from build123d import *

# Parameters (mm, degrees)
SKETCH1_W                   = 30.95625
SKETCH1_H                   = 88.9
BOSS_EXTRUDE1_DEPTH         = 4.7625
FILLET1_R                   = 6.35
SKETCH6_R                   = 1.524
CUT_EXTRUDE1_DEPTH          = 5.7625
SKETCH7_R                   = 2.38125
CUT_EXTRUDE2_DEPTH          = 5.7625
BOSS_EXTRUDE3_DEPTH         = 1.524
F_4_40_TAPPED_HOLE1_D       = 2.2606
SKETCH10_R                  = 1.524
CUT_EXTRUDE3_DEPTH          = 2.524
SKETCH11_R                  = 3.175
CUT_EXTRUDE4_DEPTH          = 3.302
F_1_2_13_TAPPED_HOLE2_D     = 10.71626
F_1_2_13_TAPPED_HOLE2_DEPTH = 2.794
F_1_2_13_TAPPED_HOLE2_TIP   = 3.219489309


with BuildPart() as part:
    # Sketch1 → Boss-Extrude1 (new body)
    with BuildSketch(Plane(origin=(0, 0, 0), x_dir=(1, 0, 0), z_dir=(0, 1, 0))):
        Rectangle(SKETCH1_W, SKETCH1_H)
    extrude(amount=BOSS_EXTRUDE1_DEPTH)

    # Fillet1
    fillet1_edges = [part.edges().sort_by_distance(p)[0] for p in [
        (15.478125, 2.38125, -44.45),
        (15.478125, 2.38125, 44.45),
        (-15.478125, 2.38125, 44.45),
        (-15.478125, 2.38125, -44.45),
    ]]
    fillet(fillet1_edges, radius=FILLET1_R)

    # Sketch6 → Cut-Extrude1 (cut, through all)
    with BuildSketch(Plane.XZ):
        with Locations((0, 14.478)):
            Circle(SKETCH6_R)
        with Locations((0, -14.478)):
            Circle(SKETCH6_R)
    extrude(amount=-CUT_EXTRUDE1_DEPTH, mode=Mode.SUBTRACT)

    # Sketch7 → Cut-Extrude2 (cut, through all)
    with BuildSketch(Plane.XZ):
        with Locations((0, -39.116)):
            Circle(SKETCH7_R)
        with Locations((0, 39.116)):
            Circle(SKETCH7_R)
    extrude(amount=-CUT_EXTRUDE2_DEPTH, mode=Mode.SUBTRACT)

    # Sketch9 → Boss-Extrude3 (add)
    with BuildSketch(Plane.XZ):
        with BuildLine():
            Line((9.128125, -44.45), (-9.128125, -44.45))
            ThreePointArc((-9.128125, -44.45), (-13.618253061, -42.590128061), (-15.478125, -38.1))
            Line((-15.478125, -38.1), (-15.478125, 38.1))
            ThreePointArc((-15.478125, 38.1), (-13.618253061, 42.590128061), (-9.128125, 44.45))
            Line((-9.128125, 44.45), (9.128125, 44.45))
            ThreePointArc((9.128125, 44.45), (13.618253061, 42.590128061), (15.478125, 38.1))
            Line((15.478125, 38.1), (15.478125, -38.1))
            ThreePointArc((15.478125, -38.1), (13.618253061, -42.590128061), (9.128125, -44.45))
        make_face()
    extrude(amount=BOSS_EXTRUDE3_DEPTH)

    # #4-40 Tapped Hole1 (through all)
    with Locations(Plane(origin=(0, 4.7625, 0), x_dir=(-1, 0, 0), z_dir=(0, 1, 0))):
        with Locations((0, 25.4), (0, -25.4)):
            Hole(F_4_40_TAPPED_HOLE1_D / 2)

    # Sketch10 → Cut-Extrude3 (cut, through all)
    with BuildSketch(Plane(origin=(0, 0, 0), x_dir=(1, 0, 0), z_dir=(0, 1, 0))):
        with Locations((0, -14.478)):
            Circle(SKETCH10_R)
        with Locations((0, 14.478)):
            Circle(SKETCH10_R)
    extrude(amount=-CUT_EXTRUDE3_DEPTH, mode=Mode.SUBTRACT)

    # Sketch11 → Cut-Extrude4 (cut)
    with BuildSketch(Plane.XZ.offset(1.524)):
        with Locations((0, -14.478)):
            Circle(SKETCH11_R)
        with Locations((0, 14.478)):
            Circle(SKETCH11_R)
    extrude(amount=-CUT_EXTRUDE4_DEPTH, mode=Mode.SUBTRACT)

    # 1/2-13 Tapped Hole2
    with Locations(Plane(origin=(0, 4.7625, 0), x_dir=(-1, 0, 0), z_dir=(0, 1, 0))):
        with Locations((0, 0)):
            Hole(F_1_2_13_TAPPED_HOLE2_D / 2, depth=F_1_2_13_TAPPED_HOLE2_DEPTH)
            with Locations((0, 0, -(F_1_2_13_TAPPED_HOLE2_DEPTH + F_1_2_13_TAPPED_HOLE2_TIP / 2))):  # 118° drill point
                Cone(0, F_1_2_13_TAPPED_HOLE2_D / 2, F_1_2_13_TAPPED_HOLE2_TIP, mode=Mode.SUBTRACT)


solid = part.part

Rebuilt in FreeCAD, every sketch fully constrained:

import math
import FreeCAD as App
import Part
import Sketcher
from FreeCAD import Vector
Q = App.Units.Quantity


def edges_at(feature, points):
    """Names of the edges that pass closest to the given points."""
    edges = feature.Shape.Edges
    near = lambda p: min(range(len(edges)), key=lambda i: edges[i].distToShape(Part.Vertex(*p))[0])
    return sorted({f"Edge{near(p) + 1}" for p in points})


def add_polygon(sketch, points):
    """Adds a closed chain of lines whose ends are joined by coincident constraints."""
    first, n = sketch.GeometryCount, len(points)
    for a, b in zip(points, points[1:] + points[:1]):
        sketch.addGeometry(Part.LineSegment(App.Vector(*a, 0), App.Vector(*b, 0)), False)
    for i in range(n):
        sketch.addConstraint(Sketcher.Constraint("Coincident", first + i, 2, first + (i + 1) % n, 1))

doc = App.newDocument("Part")
params = doc.addObject("Spreadsheet::Sheet", "Params")
for row, (alias, value) in enumerate([
    ("sketch1_height", "3.5 in"),
    ("sketch1_width", "1.21875 in"),
    ("pad1_length", "0.1875 in"),
    ("fillet_radius", "0.25 in"),
    ("sketch2_diameter", "0.12 in"),
    ("sketch3_diameter", "0.1875 in"),
    ("sketch4_height", "3 in"),
    ("sketch4_radius", "0.25 in"),
    ("sketch4_width", "0.71875 in"),
    ("pad2_length", "0.06 in"),
    ("sketch5_diameter", "0.089 in"),
    ("hole_diameter", "0.089 in"),
    ("sketch6_diameter", "0.12 in"),
    ("sketch7_diameter", "0.25 in"),
    ("pocket4_length", "0.13 in"),
    ("hole2_diameter", "0.4219 in"),
    ("hole2_depth", "0.11 in"),
], start=1):
    params.set(f"A{row}", alias)
    params.set(f"B{row}", "=" + value)
    params.setAlias(f"B{row}", alias)

body = doc.addObject("PartDesign::Body", "Body")

# Sketch on XZ plane
sketch1 = body.newObject("Sketcher::SketchObject", "Sketch")
sketch1.AttachmentSupport = (doc.getObject("XZ_Plane"), [""])
sketch1.MapMode = "FlatFace"
add_polygon(sketch1, [(-15, -44), (-15, 44), (15, 44), (15, -44)])  # lines 0-3
sketch1.addConstraint([
    Sketcher.Constraint("Vertical", 0),
    Sketcher.Constraint("Horizontal", 1),
    Sketcher.Constraint("Vertical", 2),
    Sketcher.Constraint("Horizontal", 3),
    Sketcher.Constraint("Symmetric", 0, 2, 2, 2, -1, 1),
    Sketcher.Constraint("DistanceY", 0, 1, 0, 2, Q("3.5 in")),
    Sketcher.Constraint("DistanceX", 1, 1, 1, 2, Q("1.21875 in")),
])
sketch1.setExpression("Constraints[9]", "Params.sketch1_height")
sketch1.setExpression("Constraints[10]", "Params.sketch1_width")
pad1 = body.newObject("PartDesign::Pad", "Pad")
pad1.Profile = sketch1
pad1.setExpression("Length", "Params.pad1_length")
pad1.Reversed = True
doc.recompute()

fillet = body.newObject("PartDesign::Fillet", "Fillet")
fillet.Base = (pad1, edges_at(pad1, [
    (15.478, 2.381, -44.45),
    (15.478, 2.381, 44.45),
    (-15.478, 2.381, 44.45),
    (-15.478, 2.381, -44.45),
]))
fillet.setExpression("Radius", "Params.fillet_radius")

# Sketch on XZ plane
sketch2 = body.newObject("Sketcher::SketchObject", "Sketch001")
sketch2.AttachmentSupport = (doc.getObject("XZ_Plane"), [""])
sketch2.MapMode = "FlatFace"
sketch2.addGeometry([
    Part.Circle(Vector(0, 14.5, 0), Vector(0, 0, 1), 1.5),
    Part.Circle(Vector(0, -14.5, 0), Vector(0, 0, 1), 1.5),
], False)
sketch2.addConstraint([
    Sketcher.Constraint("Equal", 0, 1),
    Sketcher.Constraint("Symmetric", 0, 3, 1, 3, -1, 1),
    Sketcher.Constraint("PointOnObject", 0, 3, -2),
    Sketcher.Constraint("Diameter", 0, Q("0.12 in")),
    Sketcher.Constraint("DistanceY", -1, 1, 0, 3, Q("0.57 in")),
])
sketch2.setExpression("Constraints[3]", "Params.sketch2_diameter")
pocket1 = body.newObject("PartDesign::Pocket", "Pocket")
pocket1.Profile = sketch2
pocket1.Type = "ThroughAll"

# Sketch on XZ plane
sketch3 = body.newObject("Sketcher::SketchObject", "Sketch002")
sketch3.AttachmentSupport = (doc.getObject("XZ_Plane"), [""])
sketch3.MapMode = "FlatFace"
sketch3.addGeometry([
    Part.Circle(Vector(0, -39.1, 0), Vector(0, 0, 1), 2.4),
    Part.Circle(Vector(0, 39.1, 0), Vector(0, 0, 1), 2.4),
], False)
sketch3.addConstraint([
    Sketcher.Constraint("Equal", 0, 1),
    Sketcher.Constraint("Symmetric", 0, 3, 1, 3, -1, 1),
    Sketcher.Constraint("PointOnObject", 0, 3, -2),
    Sketcher.Constraint("Diameter", 0, Q("0.1875 in")),
    Sketcher.Constraint("DistanceY", 0, 3, -1, 1, Q("1.54 in")),
])
sketch3.setExpression("Constraints[3]", "Params.sketch3_diameter")
pocket2 = body.newObject("PartDesign::Pocket", "Pocket001")
pocket2.Profile = sketch3
pocket2.Type = "ThroughAll"

# Sketch on XZ plane
sketch4 = body.newObject("Sketcher::SketchObject", "Sketch003")
sketch4.AttachmentSupport = (doc.getObject("XZ_Plane"), [""])
sketch4.MapMode = "FlatFace"
sketch4.addGeometry([
    Part.LineSegment(Vector(-9, -44, 0), Vector(9, -44, 0)),  # 0
    Part.ArcOfCircle(Part.Circle(Vector(9, -38, 0), Vector(0, 0, 1), 6), math.radians(-90), math.radians(0)),  # 1
    Part.LineSegment(Vector(15, -38, 0), Vector(15, 38, 0)),  # 2
    Part.ArcOfCircle(Part.Circle(Vector(9, 38, 0), Vector(0, 0, 1), 6), math.radians(0), math.radians(90)),  # 3
    Part.LineSegment(Vector(9, 44, 0), Vector(-9, 44, 0)),  # 4
    Part.ArcOfCircle(Part.Circle(Vector(-9, 38, 0), Vector(0, 0, 1), 6), math.radians(90), math.radians(180)),  # 5
    Part.LineSegment(Vector(-15, 38, 0), Vector(-15, -38, 0)),  # 6
    Part.ArcOfCircle(Part.Circle(Vector(-9, -38, 0), Vector(0, 0, 1), 6), math.radians(180), math.radians(270)),  # 7
], False)
sketch4.addConstraint([
    Sketcher.Constraint("Tangent", 0, 2, 1, 1),
    Sketcher.Constraint("Tangent", 1, 2, 2, 1),
    Sketcher.Constraint("Tangent", 2, 2, 3, 1),
    Sketcher.Constraint("Tangent", 3, 2, 4, 1),
    Sketcher.Constraint("Tangent", 4, 2, 5, 1),
    Sketcher.Constraint("Tangent", 5, 2, 6, 1),
    Sketcher.Constraint("Tangent", 6, 2, 7, 1),
    Sketcher.Constraint("Tangent", 7, 2, 0, 1),
    Sketcher.Constraint("Horizontal", 0),
    Sketcher.Constraint("Vertical", 2),
    Sketcher.Constraint("Horizontal", 4),
    Sketcher.Constraint("Vertical", 6),
    Sketcher.Constraint("Equal", 1, 3),
    Sketcher.Constraint("Equal", 3, 5),
    Sketcher.Constraint("Equal", 5, 7),
    Sketcher.Constraint("Symmetric", 1, 3, 5, 3, -1, 1),
    Sketcher.Constraint("DistanceY", 2, 1, 2, 2, Q("3 in")),
    Sketcher.Constraint("Radius", 1, Q("0.25 in")),
    Sketcher.Constraint("DistanceX", 0, 1, 0, 2, Q("0.71875 in")),
])
sketch4.setExpression("Constraints[16]", "Params.sketch4_height")
sketch4.setExpression("Constraints[17]", "Params.sketch4_radius")
sketch4.setExpression("Constraints[18]", "Params.sketch4_width")
pad2 = body.newObject("PartDesign::Pad", "Pad001")
pad2.Profile = sketch4
pad2.setExpression("Length", "Params.pad2_length")

# Sketch on XZ plane
sketch5 = body.newObject("Sketcher::SketchObject", "Sketch004")
sketch5.AttachmentSupport = (doc.getObject("XZ_Plane"), [""])
sketch5.MapMode = "FlatFace"
sketch5.AttachmentOffset = App.Placement(Vector(0, 0, -0.1875 * 25.4), App.Rotation())
sketch5.addGeometry([
    Part.Circle(Vector(0, 25.4, 0), Vector(0, 0, 1), 1.1),
    Part.Circle(Vector(0, -25.4, 0), Vector(0, 0, 1), 1.1),
], False)
sketch5.addConstraint([
    Sketcher.Constraint("Equal", 0, 1),
    Sketcher.Constraint("Symmetric", 0, 3, 1, 3, -1, 1),
    Sketcher.Constraint("PointOnObject", 0, 3, -2),
    Sketcher.Constraint("Diameter", 0, Q("0.089 in")),
    Sketcher.Constraint("DistanceY", -1, 1, 0, 3, Q("1 in")),
])
sketch5.setExpression("Constraints[3]", "Params.sketch5_diameter")
doc.recompute()
hole = body.newObject("PartDesign::Hole", "Hole")
hole.Profile = sketch5
hole.ThreadType = "None"
hole.setExpression("Diameter", "Params.hole_diameter")
hole.DepthType = "ThroughAll"
hole.Reversed = True

# Sketch on XZ plane
sketch6 = body.newObject("Sketcher::SketchObject", "Sketch005")
sketch6.AttachmentSupport = (doc.getObject("XZ_Plane"), [""])
sketch6.MapMode = "FlatFace"
sketch6.addGeometry([
    Part.Circle(Vector(0, 14.5, 0), Vector(0, 0, 1), 1.5),
    Part.Circle(Vector(0, -14.5, 0), Vector(0, 0, 1), 1.5),
], False)
sketch6.addConstraint([
    Sketcher.Constraint("Equal", 0, 1),
    Sketcher.Constraint("Symmetric", 0, 3, 1, 3, -1, 1),
    Sketcher.Constraint("PointOnObject", 0, 3, -2),
    Sketcher.Constraint("Diameter", 0, Q("0.12 in")),
    Sketcher.Constraint("DistanceY", -1, 1, 0, 3, Q("0.57 in")),
])
sketch6.setExpression("Constraints[3]", "Params.sketch6_diameter")
pocket3 = body.newObject("PartDesign::Pocket", "Pocket002")
pocket3.Profile = sketch6
pocket3.Type = "ThroughAll"
pocket3.Reversed = True

# Sketch on XZ plane
sketch7 = body.newObject("Sketcher::SketchObject", "Sketch006")
sketch7.AttachmentSupport = (doc.getObject("XZ_Plane"), [""])
sketch7.MapMode = "FlatFace"
sketch7.AttachmentOffset = App.Placement(Vector(0, 0, 0.06 * 25.4), App.Rotation())
sketch7.addGeometry([
    Part.Circle(Vector(0, -14.5, 0), Vector(0, 0, 1), 3.2),
    Part.Circle(Vector(0, 14.5, 0), Vector(0, 0, 1), 3.2),
], False)
sketch7.addConstraint([
    Sketcher.Constraint("Equal", 0, 1),
    Sketcher.Constraint("Symmetric", 0, 3, 1, 3, -1, 1),
    Sketcher.Constraint("PointOnObject", 0, 3, -2),
    Sketcher.Constraint("Diameter", 0, Q("0.25 in")),
    Sketcher.Constraint("DistanceY", 0, 3, -1, 1, Q("0.57 in")),
])
sketch7.setExpression("Constraints[3]", "Params.sketch7_diameter")
pocket4 = body.newObject("PartDesign::Pocket", "Pocket003")
pocket4.Profile = sketch7
pocket4.setExpression("Length", "Params.pocket4_length")

# Sketch on XZ plane
sketch8 = body.newObject("Sketcher::SketchObject", "Sketch007")
sketch8.AttachmentSupport = (doc.getObject("XZ_Plane"), [""])
sketch8.MapMode = "FlatFace"
sketch8.AttachmentOffset = App.Placement(Vector(0, 0, -0.1875 * 25.4), App.Rotation())
sketch8.addGeometry(Part.Circle(Vector(0, 0, 0), Vector(0, 0, 1), 5), False)
sketch8.addConstraint([
    Sketcher.Constraint("Coincident", 0, 3, -1, 1),
    Sketcher.Constraint("Diameter", 0, Q("0.4219 in")),
])
doc.recompute()
hole2 = body.newObject("PartDesign::Hole", "Hole001")
hole2.Profile = sketch8
hole2.ThreadType = "None"
hole2.setExpression("Diameter", "Params.hole2_diameter")
hole2.DepthType = "Dimension"
hole2.setExpression("Depth", "Params.hole2_depth")
hole2.DrillPoint = "Angled"
hole2.DrillPointAngle = 118
hole2.Reversed = True

doc.recompute()
